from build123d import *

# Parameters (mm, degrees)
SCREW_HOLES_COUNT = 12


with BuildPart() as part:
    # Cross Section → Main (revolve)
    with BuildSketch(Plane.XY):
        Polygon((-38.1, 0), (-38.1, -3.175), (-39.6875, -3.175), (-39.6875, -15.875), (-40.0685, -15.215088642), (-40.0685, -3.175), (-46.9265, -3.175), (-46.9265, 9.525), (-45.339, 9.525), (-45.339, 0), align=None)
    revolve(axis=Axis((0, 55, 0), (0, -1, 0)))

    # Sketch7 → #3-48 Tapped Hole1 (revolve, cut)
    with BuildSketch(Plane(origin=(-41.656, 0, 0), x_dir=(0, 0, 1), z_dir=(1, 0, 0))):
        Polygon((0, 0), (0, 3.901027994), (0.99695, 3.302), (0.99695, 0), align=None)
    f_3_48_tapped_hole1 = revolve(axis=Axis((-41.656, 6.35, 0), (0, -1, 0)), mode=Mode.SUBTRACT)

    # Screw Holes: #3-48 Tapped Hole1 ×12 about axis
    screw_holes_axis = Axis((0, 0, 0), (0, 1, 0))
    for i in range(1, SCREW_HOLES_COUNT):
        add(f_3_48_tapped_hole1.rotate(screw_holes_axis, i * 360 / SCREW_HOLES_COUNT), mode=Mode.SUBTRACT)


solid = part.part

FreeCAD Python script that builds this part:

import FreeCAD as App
import Part
import Sketcher
from FreeCAD import Vector
Q = App.Units.Quantity


def add_polygon(sketch, points):
    """Adds a closed chain of lines whose ends are joined by coincident constraints."""
    first, n = sketch.GeometryCount, len(points)
    for a, b in zip(points, points[1:] + points[:1]):
        sketch.addGeometry(Part.LineSegment(App.Vector(*a, 0), App.Vector(*b, 0)), False)
    for i in range(n):
        sketch.addConstraint(Sketcher.Constraint("Coincident", first + i, 2, first + (i + 1) % n, 1))

doc = App.newDocument("Part")
params = doc.addObject("Spreadsheet::Sheet", "Params")
for row, (alias, value) in enumerate([
    ("sketch1_height", "0.5 in"),
    ("sketch1_width", "0.27 in"),
    ("sketch1_length", "0.03 in"),
    ("sketch1_width2", "0.0625 in"),
    ("sketch1_height2", "0.125 in"),
    ("revolution_angle", "360 deg"),
    ("sketch2_width", "0.13 in"),
    ("groove_angle", "360 deg"),
], start=1):
    params.set(f"A{row}", alias)
    params.set(f"B{row}", "=" + value)
    params.setAlias(f"B{row}", alias)

body = doc.addObject("PartDesign::Body", "Body")

sketch1 = body.newObject("Sketcher::SketchObject", "Sketch")
sketch1.AttachmentSupport = (doc.getObject("XY_Plane"), [""])
sketch1.MapMode = "FlatFace"
add_polygon(sketch1, [(-38.1, -3.2), (-38.1, 0), (-45.3, 0), (-45.3, 9.5), (-46.9, 9.5), (-46.9, -3.2), (-40.1, -3.2), (-40.1, -15.2), (-39.7, -15.9), (-39.7, -3.2)])
sketch1.addConstraint([
    Sketcher.Constraint("Vertical", 0),
    Sketcher.Constraint("Horizontal", 1),
    Sketcher.Constraint("Vertical", 2),
    Sketcher.Constraint("Horizontal", 3),
    Sketcher.Constraint("Vertical", 4),
    Sketcher.Constraint("Horizontal", 5),
    Sketcher.Constraint("Vertical", 6),
    Sketcher.Constraint("Vertical", 8),
    Sketcher.Constraint("Horizontal", 9),
    Sketcher.Constraint("PointOnObject", 0, 2, -1),
    Sketcher.Constraint("Horizontal", 5, 2, 8, 2),
    Sketcher.Constraint("Equal", 3, 9),
    Sketcher.Constraint("Equal", 4, 8),
    Sketcher.Constraint("DistanceY", 4, 2, 4, 1, Q("0.5 in")),
    Sketcher.Constraint("Angle", 7, Q("-60 deg")),
    Sketcher.Constraint("DistanceX", 5, 1, 5, 2, Q("0.27 in")),
    Sketcher.Constraint("DistanceX", 0, 2, -1, 1, Q("1.5 in")),
    Sketcher.Constraint("Distance", 7, Q("0.03 in")),
    Sketcher.Constraint("DistanceX", 3, 2, 3, 1, Q("0.0625 in")),
    Sketcher.Constraint("DistanceY", 0, 1, 0, 2, Q("0.125 in")),
])
sketch1.setExpression("Constraints[23]", "Params.sketch1_height")
sketch1.setExpression("Constraints[25]", "Params.sketch1_width")
sketch1.setExpression("Constraints[27]", "Params.sketch1_length")
sketch1.setExpression("Constraints[28]", "Params.sketch1_width2")
sketch1.setExpression("Constraints[29]", "Params.sketch1_height2")
revolution = body.newObject("PartDesign::Revolution", "Revolution")
revolution.Profile = sketch1
revolution.ReferenceAxis = (sketch1, ["V_Axis"])
revolution.setExpression("Angle", "Params.revolution_angle")

sketch2 = body.newObject("Sketcher::SketchObject", "Sketch001")
sketch2.AttachmentSupport = (doc.getObject("YZ_Plane"), [""])
sketch2.MapMode = "FlatFace"
sketch2.AttachmentOffset = App.Placement(Vector(0, 0, -1.64 * 25.4), App.Rotation())
add_polygon(sketch2, [(-3.9, 0), (0, 0), (0, 1), (-3.3, 1)])
sketch2.addConstraint([
    Sketcher.Constraint("Horizontal", 0),
    Sketcher.Constraint("Vertical", 1),
    Sketcher.Constraint("Horizontal", 2),
    Sketcher.Constraint("Coincident", 0, 2, -1, 1),
    Sketcher.Constraint("Angle", 3, Q("-121 deg")),
    Sketcher.Constraint("DistanceX", 2, 2, 2, 1, Q("0.13 in")),
    Sketcher.Constraint("DistanceY", 1, 1, 1, 2, Q("0.99695 mm")),
])
sketch2.setExpression("Constraints[9]", "Params.sketch2_width")
groove = body.newObject("PartDesign::Groove", "Groove")
groove.Profile = sketch2
groove.ReferenceAxis = (sketch2, ["H_Axis"])
groove.setExpression("Angle", "Params.groove_angle")
doc.recompute()

polarpattern = body.newObject("PartDesign::PolarPattern", "PolarPattern")
polarpattern.Originals = [groove]
polarpattern.Axis = (doc.getObject("Y_Axis"), [""])
polarpattern.Angle = 360
polarpattern.Occurrences = 12
body.Tip = polarpattern

doc.recompute()
